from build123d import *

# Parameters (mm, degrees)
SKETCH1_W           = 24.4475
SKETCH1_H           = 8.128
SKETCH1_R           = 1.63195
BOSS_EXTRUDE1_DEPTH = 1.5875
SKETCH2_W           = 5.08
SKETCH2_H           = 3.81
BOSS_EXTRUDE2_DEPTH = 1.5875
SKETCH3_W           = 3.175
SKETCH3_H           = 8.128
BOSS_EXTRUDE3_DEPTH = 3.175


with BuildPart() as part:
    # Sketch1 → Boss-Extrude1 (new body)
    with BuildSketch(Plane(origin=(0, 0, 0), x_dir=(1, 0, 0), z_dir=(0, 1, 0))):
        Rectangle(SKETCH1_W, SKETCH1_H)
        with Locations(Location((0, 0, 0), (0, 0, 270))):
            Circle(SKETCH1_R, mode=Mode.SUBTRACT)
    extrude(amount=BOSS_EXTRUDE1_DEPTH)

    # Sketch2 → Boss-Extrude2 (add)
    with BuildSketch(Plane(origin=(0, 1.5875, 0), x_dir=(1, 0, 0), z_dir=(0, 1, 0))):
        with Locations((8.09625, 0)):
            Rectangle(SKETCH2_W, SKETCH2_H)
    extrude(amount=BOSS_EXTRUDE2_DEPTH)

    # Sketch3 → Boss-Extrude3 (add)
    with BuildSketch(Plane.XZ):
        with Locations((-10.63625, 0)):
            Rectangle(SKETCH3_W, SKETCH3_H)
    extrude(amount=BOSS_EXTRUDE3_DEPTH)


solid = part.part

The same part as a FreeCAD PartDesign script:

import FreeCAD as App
import Part
import Sketcher
from FreeCAD import Vector
Q = App.Units.Quantity

doc = App.newDocument("Part")
body = doc.addObject("PartDesign::Body", "Body")

# Sketch on XZ plane
sketch1 = body.newObject("Sketcher::SketchObject", "Sketch")
sketch1.AttachmentSupport = (doc.getObject("XZ_Plane"), [""])
sketch1.MapMode = "FlatFace"
sketch1.addGeometry([
    Part.LineSegment(Vector(-12.2, -4.1, 0), Vector(-12.2, 4.1, 0)),  # 0
    Part.LineSegment(Vector(-12.2, 4.1, 0), Vector(12.2, 4.1, 0)),  # 1
    Part.LineSegment(Vector(12.2, 4.1, 0), Vector(12.2, -4.1, 0)),  # 2
    Part.LineSegment(Vector(12.2, -4.1, 0), Vector(-12.2, -4.1, 0)),  # 3
    Part.Circle(Vector(0, 0, 0), Vector(0, 0, 1), 1.6),  # 4
], False)
sketch1.addConstraint([
    Sketcher.Constraint("Coincident", 0, 2, 1, 1),
    Sketcher.Constraint("Coincident", 1, 2, 2, 1),
    Sketcher.Constraint("Coincident", 2, 2, 3, 1),
    Sketcher.Constraint("Coincident", 3, 2, 0, 1),
    Sketcher.Constraint("Vertical", 0),
    Sketcher.Constraint("Horizontal", 1),
    Sketcher.Constraint("Vertical", 2),
    Sketcher.Constraint("Horizontal", 3),
    Sketcher.Constraint("Coincident", 4, 3, -1, 1),
    Sketcher.Constraint("Symmetric", 0, 2, 2, 2, -1, 1),
    Sketcher.Constraint("Diameter", 4, Q("0.1285 in")),
    Sketcher.Constraint("DistanceY", 0, 1, 0, 2, Q("0.32 in")),
    Sketcher.Constraint("DistanceX", 1, 1, 1, 2, Q("0.9625 in")),
])
pad1 = body.newObject("PartDesign::Pad", "Pad")
pad1.Profile = sketch1
pad1.Length = Q("0.0625 in")
pad1.Reversed = True

# Sketch on XZ plane
sketch2 = body.newObject("Sketcher::SketchObject", "Sketch001")
sketch2.AttachmentSupport = (doc.getObject("XZ_Plane"), [""])
sketch2.MapMode = "FlatFace"
sketch2.AttachmentOffset = App.Placement(Vector(0, 0, -0.0625 * 25.4), App.Rotation())
sketch2.addGeometry([
    Part.LineSegment(Vector(5.6, -1.9, 0), Vector(5.6, 1.9, 0)),
    Part.LineSegment(Vector(5.6, 1.9, 0), Vector(10.6, 1.9, 0)),
    Part.LineSegment(Vector(10.6, 1.9, 0), Vector(10.6, -1.9, 0)),
    Part.LineSegment(Vector(10.6, -1.9, 0), Vector(5.6, -1.9, 0)),
], False)
sketch2.addConstraint([
    Sketcher.Constraint("Coincident", 0, 2, 1, 1),
    Sketcher.Constraint("Coincident", 1, 2, 2, 1),
    Sketcher.Constraint("Coincident", 2, 2, 3, 1),
    Sketcher.Constraint("Coincident", 3, 2, 0, 1),
    Sketcher.Constraint("Vertical", 0),
    Sketcher.Constraint("Horizontal", 1),
    Sketcher.Constraint("Vertical", 2),
    Sketcher.Constraint("Horizontal", 3),
    Sketcher.Constraint("DistanceX", 1, 1, 1, 2, Q("0.2 in")),
    Sketcher.Constraint("DistanceY", 0, 1, 0, 2, Q("0.15 in")),
    Sketcher.Constraint("DistanceX", -1, 1, 0, 2, Q("0.21875 in")),
    Sketcher.Constraint("DistanceY", -1, 1, 0, 2, Q("0.075 in")),
])
pad2 = body.newObject("PartDesign::Pad", "Pad001")
pad2.Profile = sketch2
pad2.Length = Q("0.0625 in")
pad2.Reversed = True

# Sketch on XZ plane
sketch3 = body.newObject("Sketcher::SketchObject", "Sketch002")
sketch3.AttachmentSupport = (doc.getObject("XZ_Plane"), [""])
sketch3.MapMode = "FlatFace"
sketch3.addGeometry([
    Part.LineSegment(Vector(-12.2, 4.1, 0), Vector(-12.2, -4.1, 0)),
    Part.LineSegment(Vector(-12.2, -4.1, 0), Vector(-9, -4.1, 0)),
    Part.LineSegment(Vector(-9, -4.1, 0), Vector(-9, 4.1, 0)),
    Part.LineSegment(Vector(-9, 4.1, 0), Vector(-12.2, 4.1, 0)),
], False)
sketch3.addConstraint([
    Sketcher.Constraint("Coincident", 0, 2, 1, 1),
    Sketcher.Constraint("Coincident", 1, 2, 2, 1),
    Sketcher.Constraint("Coincident", 2, 2, 3, 1),
    Sketcher.Constraint("Coincident", 3, 2, 0, 1),
    Sketcher.Constraint("Vertical", 0),
    Sketcher.Constraint("Horizontal", 1),
    Sketcher.Constraint("Vertical", 2),
    Sketcher.Constraint("Horizontal", 3),
    Sketcher.Constraint("DistanceY", 0, 2, 0, 1, Q("0.32 in")),
    Sketcher.Constraint("DistanceX", 1, 1, 1, 2, Q("0.125 in")),
    Sketcher.Constraint("DistanceY", 0, 2, -1, 1, Q("0.16 in")),
    Sketcher.Constraint("DistanceX", 0, 2, -1, 1, Q("12.22375 mm")),
])
pad3 = body.newObject("PartDesign::Pad", "Pad002")
pad3.Profile = sketch3
pad3.Length = Q("0.125 in")

doc.recompute()
